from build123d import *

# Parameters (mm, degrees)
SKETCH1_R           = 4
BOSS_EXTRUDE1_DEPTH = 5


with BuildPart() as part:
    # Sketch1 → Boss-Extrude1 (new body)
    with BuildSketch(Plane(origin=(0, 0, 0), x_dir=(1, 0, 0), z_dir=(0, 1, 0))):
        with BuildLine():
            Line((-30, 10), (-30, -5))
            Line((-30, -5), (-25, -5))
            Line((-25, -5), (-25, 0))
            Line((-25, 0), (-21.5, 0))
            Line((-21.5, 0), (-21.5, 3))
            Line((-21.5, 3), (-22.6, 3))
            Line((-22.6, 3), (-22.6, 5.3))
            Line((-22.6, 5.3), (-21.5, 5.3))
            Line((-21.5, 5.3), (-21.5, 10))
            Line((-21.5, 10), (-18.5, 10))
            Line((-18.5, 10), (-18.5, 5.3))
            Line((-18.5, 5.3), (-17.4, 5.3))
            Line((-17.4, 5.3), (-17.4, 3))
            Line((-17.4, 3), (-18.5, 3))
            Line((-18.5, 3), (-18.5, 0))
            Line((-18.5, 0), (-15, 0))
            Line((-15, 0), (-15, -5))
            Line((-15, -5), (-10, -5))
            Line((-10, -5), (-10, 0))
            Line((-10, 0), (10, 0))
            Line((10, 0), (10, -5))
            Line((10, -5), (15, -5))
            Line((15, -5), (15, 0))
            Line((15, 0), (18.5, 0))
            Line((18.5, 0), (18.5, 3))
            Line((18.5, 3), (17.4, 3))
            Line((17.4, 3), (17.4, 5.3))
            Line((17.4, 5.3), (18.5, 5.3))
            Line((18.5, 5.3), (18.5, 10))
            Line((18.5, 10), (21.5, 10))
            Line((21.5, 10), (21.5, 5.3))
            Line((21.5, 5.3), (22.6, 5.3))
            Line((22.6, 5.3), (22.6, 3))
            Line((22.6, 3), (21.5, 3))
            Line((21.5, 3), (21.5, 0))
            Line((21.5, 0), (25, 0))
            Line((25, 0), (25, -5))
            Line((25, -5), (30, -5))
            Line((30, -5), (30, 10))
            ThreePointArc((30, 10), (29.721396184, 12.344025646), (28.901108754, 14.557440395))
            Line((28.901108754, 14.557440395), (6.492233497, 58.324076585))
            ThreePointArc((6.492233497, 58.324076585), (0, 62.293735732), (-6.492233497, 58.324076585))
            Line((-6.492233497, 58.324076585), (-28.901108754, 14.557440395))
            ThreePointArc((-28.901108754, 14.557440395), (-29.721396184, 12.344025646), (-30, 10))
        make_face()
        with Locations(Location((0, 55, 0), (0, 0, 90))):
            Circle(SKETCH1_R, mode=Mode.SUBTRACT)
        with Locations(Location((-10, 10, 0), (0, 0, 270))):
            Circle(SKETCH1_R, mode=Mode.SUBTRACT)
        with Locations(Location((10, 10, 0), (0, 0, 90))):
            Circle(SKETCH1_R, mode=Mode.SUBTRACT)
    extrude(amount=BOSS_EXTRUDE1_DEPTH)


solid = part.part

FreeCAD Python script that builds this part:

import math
import FreeCAD as App
import Part
import Sketcher
Q = App.Units.Quantity

doc = App.newDocument("Part")
body = doc.addObject("PartDesign::Body", "Body")

sketch1 = body.newObject("Sketcher::SketchObject", "Sketch")
sketch1.AttachmentSupport = (doc.getObject("XZ_Plane"), [""])
sketch1.MapMode = "FlatFace"
sketch1.addGeometry(Part.LineSegment(App.Vector(-30, -10, 0), App.Vector(-30, 5, 0)), False)
sketch1.addGeometry(Part.LineSegment(App.Vector(-30, 5, 0), App.Vector(-25, 5, 0)), False)
sketch1.addGeometry(Part.LineSegment(App.Vector(-25, 5, 0), App.Vector(-25, 0, 0)), False)
sketch1.addGeometry(Part.LineSegment(App.Vector(-25, 0, 0), App.Vector(-21.5, 0, 0)), False)
sketch1.addGeometry(Part.LineSegment(App.Vector(-21.5, 0, 0), App.Vector(-21.5, -3, 0)), False)
sketch1.addGeometry(Part.LineSegment(App.Vector(-21.5, -3, 0), App.Vector(-22.6, -3, 0)), False)
sketch1.addGeometry(Part.LineSegment(App.Vector(-22.6, -3, 0), App.Vector(-22.6, -5.3, 0)), False)
sketch1.addGeometry(Part.LineSegment(App.Vector(-22.6, -5.3, 0), App.Vector(-21.5, -5.3, 0)), False)
sketch1.addGeometry(Part.LineSegment(App.Vector(-21.5, -5.3, 0), App.Vector(-21.5, -10, 0)), False)
sketch1.addGeometry(Part.LineSegment(App.Vector(-21.5, -10, 0), App.Vector(-18.5, -10, 0)), False)
sketch1.addGeometry(Part.LineSegment(App.Vector(-18.5, -10, 0), App.Vector(-18.5, -5.3, 0)), False)
sketch1.addGeometry(Part.LineSegment(App.Vector(-18.5, -5.3, 0), App.Vector(-17.4, -5.3, 0)), False)
sketch1.addGeometry(Part.LineSegment(App.Vector(-17.4, -5.3, 0), App.Vector(-17.4, -3, 0)), False)
sketch1.addGeometry(Part.LineSegment(App.Vector(-17.4, -3, 0), App.Vector(-18.5, -3, 0)), False)
sketch1.addGeometry(Part.LineSegment(App.Vector(-18.5, -3, 0), App.Vector(-18.5, 0, 0)), False)
sketch1.addGeometry(Part.LineSegment(App.Vector(-18.5, 0, 0), App.Vector(-15, 0, 0)), False)
sketch1.addGeometry(Part.LineSegment(App.Vector(-15, 0, 0), App.Vector(-15, 5, 0)), False)
sketch1.addGeometry(Part.LineSegment(App.Vector(-15, 5, 0), App.Vector(-10, 5, 0)), False)
sketch1.addGeometry(Part.LineSegment(App.Vector(-10, 5, 0), App.Vector(-10, 0, 0)), False)
sketch1.addGeometry(Part.LineSegment(App.Vector(-10, 0, 0), App.Vector(10, 0, 0)), False)
sketch1.addGeometry(Part.LineSegment(App.Vector(10, 0, 0), App.Vector(10, 5, 0)), False)
sketch1.addGeometry(Part.LineSegment(App.Vector(10, 5, 0), App.Vector(15, 5, 0)), False)
sketch1.addGeometry(Part.LineSegment(App.Vector(15, 5, 0), App.Vector(15, 0, 0)), False)
sketch1.addGeometry(Part.LineSegment(App.Vector(15, 0, 0), App.Vector(18.5, 0, 0)), False)
sketch1.addGeometry(Part.LineSegment(App.Vector(18.5, 0, 0), App.Vector(18.5, -3, 0)), False)
sketch1.addGeometry(Part.LineSegment(App.Vector(18.5, -3, 0), App.Vector(17.4, -3, 0)), False)
sketch1.addGeometry(Part.LineSegment(App.Vector(17.4, -3, 0), App.Vector(17.4, -5.3, 0)), False)
sketch1.addGeometry(Part.LineSegment(App.Vector(17.4, -5.3, 0), App.Vector(18.5, -5.3, 0)), False)
sketch1.addGeometry(Part.LineSegment(App.Vector(18.5, -5.3, 0), App.Vector(18.5, -10, 0)), False)
sketch1.addGeometry(Part.LineSegment(App.Vector(18.5, -10, 0), App.Vector(21.5, -10, 0)), False)
sketch1.addGeometry(Part.LineSegment(App.Vector(21.5, -10, 0), App.Vector(21.5, -5.3, 0)), False)
sketch1.addGeometry(Part.LineSegment(App.Vector(21.5, -5.3, 0), App.Vector(22.6, -5.3, 0)), False)
sketch1.addGeometry(Part.LineSegment(App.Vector(22.6, -5.3, 0), App.Vector(22.6, -3, 0)), False)
sketch1.addGeometry(Part.LineSegment(App.Vector(22.6, -3, 0), App.Vector(21.5, -3, 0)), False)
sketch1.addGeometry(Part.LineSegment(App.Vector(21.5, -3, 0), App.Vector(21.5, 0, 0)), False)
sketch1.addGeometry(Part.LineSegment(App.Vector(21.5, 0, 0), App.Vector(25, 0, 0)), False)
sketch1.addGeometry(Part.LineSegment(App.Vector(25, 0, 0), App.Vector(25, 5, 0)), False)
sketch1.addGeometry(Part.LineSegment(App.Vector(25, 5, 0), App.Vector(30, 5, 0)), False)
sketch1.addGeometry(Part.LineSegment(App.Vector(30, 5, 0), App.Vector(30, -10, 0)), False)
sketch1.addGeometry(Part.ArcOfCircle(Part.Circle(App.Vector(20, -10, 0), App.Vector(0, 0, 1), 10), math.radians(-27), math.radians(0)), False)
sketch1.addGeometry(Part.LineSegment(App.Vector(28.9, -14.6, 0), App.Vector(6.5, -58.3, 0)), False)
sketch1.addGeometry(Part.ArcOfCircle(Part.Circle(App.Vector(0, -55, 0), App.Vector(0, 0, 1), 7.3), math.radians(-153), math.radians(-27)), False)
sketch1.addGeometry(Part.LineSegment(App.Vector(-6.5, -58.3, 0), App.Vector(-28.9, -14.6, 0)), False)
sketch1.addGeometry(Part.ArcOfCircle(Part.Circle(App.Vector(-20, -10, 0), App.Vector(0, 0, 1), 10), math.radians(-180), math.radians(-153)), False)
sketch1.addGeometry(Part.Circle(App.Vector(-10, -10, 0), App.Vector(0, 0, 1), 4), False)
sketch1.addGeometry(Part.Circle(App.Vector(10, -10, 0), App.Vector(0, 0, 1), 4), False)
sketch1.addGeometry(Part.Circle(App.Vector(0, -55, 0), App.Vector(0, 0, 1), 4), False)
sketch1.addConstraint(Sketcher.Constraint("Coincident", 0, 2, 1, 1))
sketch1.addConstraint(Sketcher.Constraint("Coincident", 1, 2, 2, 1))
sketch1.addConstraint(Sketcher.Constraint("Coincident", 2, 2, 3, 1))
sketch1.addConstraint(Sketcher.Constraint("Coincident", 3, 2, 4, 1))
sketch1.addConstraint(Sketcher.Constraint("Coincident", 4, 2, 5, 1))
sketch1.addConstraint(Sketcher.Constraint("Coincident", 5, 2, 6, 1))
sketch1.addConstraint(Sketcher.Constraint("Coincident", 6, 2, 7, 1))
sketch1.addConstraint(Sketcher.Constraint("Coincident", 7, 2, 8, 1))
sketch1.addConstraint(Sketcher.Constraint("Coincident", 8, 2, 9, 1))
sketch1.addConstraint(Sketcher.Constraint("Coincident", 9, 2, 10, 1))
sketch1.addConstraint(Sketcher.Constraint("Coincident", 10, 2, 11, 1))
sketch1.addConstraint(Sketcher.Constraint("Coincident", 11, 2, 12, 1))
sketch1.addConstraint(Sketcher.Constraint("Coincident", 12, 2, 13, 1))
sketch1.addConstraint(Sketcher.Constraint("Coincident", 13, 2, 14, 1))
sketch1.addConstraint(Sketcher.Constraint("Coincident", 14, 2, 15, 1))
sketch1.addConstraint(Sketcher.Constraint("Coincident", 15, 2, 16, 1))
sketch1.addConstraint(Sketcher.Constraint("Coincident", 16, 2, 17, 1))
sketch1.addConstraint(Sketcher.Constraint("Coincident", 17, 2, 18, 1))
sketch1.addConstraint(Sketcher.Constraint("Coincident", 18, 2, 19, 1))
sketch1.addConstraint(Sketcher.Constraint("Coincident", 19, 2, 20, 1))
sketch1.addConstraint(Sketcher.Constraint("Coincident", 20, 2, 21, 1))
sketch1.addConstraint(Sketcher.Constraint("Coincident", 21, 2, 22, 1))
sketch1.addConstraint(Sketcher.Constraint("Coincident", 22, 2, 23, 1))
sketch1.addConstraint(Sketcher.Constraint("Coincident", 23, 2, 24, 1))
sketch1.addConstraint(Sketcher.Constraint("Coincident", 24, 2, 25, 1))
sketch1.addConstraint(Sketcher.Constraint("Coincident", 25, 2, 26, 1))
sketch1.addConstraint(Sketcher.Constraint("Coincident", 26, 2, 27, 1))
sketch1.addConstraint(Sketcher.Constraint("Coincident", 27, 2, 28, 1))
sketch1.addConstraint(Sketcher.Constraint("Coincident", 28, 2, 29, 1))
sketch1.addConstraint(Sketcher.Constraint("Coincident", 29, 2, 30, 1))
sketch1.addConstraint(Sketcher.Constraint("Coincident", 30, 2, 31, 1))
sketch1.addConstraint(Sketcher.Constraint("Coincident", 31, 2, 32, 1))
sketch1.addConstraint(Sketcher.Constraint("Coincident", 32, 2, 33, 1))
sketch1.addConstraint(Sketcher.Constraint("Coincident", 33, 2, 34, 1))
sketch1.addConstraint(Sketcher.Constraint("Coincident", 34, 2, 35, 1))
sketch1.addConstraint(Sketcher.Constraint("Coincident", 35, 2, 36, 1))
sketch1.addConstraint(Sketcher.Constraint("Coincident", 36, 2, 37, 1))
sketch1.addConstraint(Sketcher.Constraint("Coincident", 37, 2, 38, 1))
sketch1.addConstraint(Sketcher.Constraint("Tangent", 38, 2, 39, 2))
sketch1.addConstraint(Sketcher.Constraint("Tangent", 39, 1, 40, 1))
sketch1.addConstraint(Sketcher.Constraint("Tangent", 40, 2, 41, 2))
sketch1.addConstraint(Sketcher.Constraint("Tangent", 41, 1, 42, 1))
sketch1.addConstraint(Sketcher.Constraint("Tangent", 42, 2, 43, 2))
sketch1.addConstraint(Sketcher.Constraint("Tangent", 43, 1, 0, 1))
sketch1.addConstraint(Sketcher.Constraint("Vertical", 0))
sketch1.addConstraint(Sketcher.Constraint("Horizontal", 1))
sketch1.addConstraint(Sketcher.Constraint("Vertical", 2))
sketch1.addConstraint(Sketcher.Constraint("Horizontal", 3))
sketch1.addConstraint(Sketcher.Constraint("Vertical", 4))
sketch1.addConstraint(Sketcher.Constraint("Horizontal", 5))
sketch1.addConstraint(Sketcher.Constraint("Vertical", 6))
sketch1.addConstraint(Sketcher.Constraint("Horizontal", 7))
sketch1.addConstraint(Sketcher.Constraint("Vertical", 8))
sketch1.addConstraint(Sketcher.Constraint("Horizontal", 9))
sketch1.addConstraint(Sketcher.Constraint("Vertical", 10))
sketch1.addConstraint(Sketcher.Constraint("Horizontal", 11))
sketch1.addConstraint(Sketcher.Constraint("Vertical", 12))
sketch1.addConstraint(Sketcher.Constraint("Horizontal", 13))
sketch1.addConstraint(Sketcher.Constraint("Vertical", 14))
sketch1.addConstraint(Sketcher.Constraint("Horizontal", 15))
sketch1.addConstraint(Sketcher.Constraint("Vertical", 16))
sketch1.addConstraint(Sketcher.Constraint("Horizontal", 17))
sketch1.addConstraint(Sketcher.Constraint("Vertical", 18))
sketch1.addConstraint(Sketcher.Constraint("Horizontal", 19))
sketch1.addConstraint(Sketcher.Constraint("Vertical", 20))
sketch1.addConstraint(Sketcher.Constraint("Horizontal", 21))
sketch1.addConstraint(Sketcher.Constraint("Vertical", 22))
sketch1.addConstraint(Sketcher.Constraint("Horizontal", 23))
sketch1.addConstraint(Sketcher.Constraint("Vertical", 24))
sketch1.addConstraint(Sketcher.Constraint("Horizontal", 25))
sketch1.addConstraint(Sketcher.Constraint("Vertical", 26))
sketch1.addConstraint(Sketcher.Constraint("Horizontal", 27))
sketch1.addConstraint(Sketcher.Constraint("Vertical", 28))
sketch1.addConstraint(Sketcher.Constraint("Horizontal", 29))
sketch1.addConstraint(Sketcher.Constraint("Vertical", 30))
sketch1.addConstraint(Sketcher.Constraint("Horizontal", 31))
sketch1.addConstraint(Sketcher.Constraint("Vertical", 32))
sketch1.addConstraint(Sketcher.Constraint("Horizontal", 33))
sketch1.addConstraint(Sketcher.Constraint("Vertical", 34))
sketch1.addConstraint(Sketcher.Constraint("Horizontal", 35))
sketch1.addConstraint(Sketcher.Constraint("Vertical", 36))
sketch1.addConstraint(Sketcher.Constraint("Horizontal", 37))
sketch1.addConstraint(Sketcher.Constraint("Vertical", 38))
sketch1.addConstraint(Sketcher.Constraint("Coincident", 46, 3, 41, 3))
sketch1.addConstraint(Sketcher.Constraint("Equal", 39, 43))
sketch1.addConstraint(Sketcher.Constraint("Equal", 44, 45))
sketch1.addConstraint(Sketcher.Constraint("Equal", 45, 46))
sketch1.addConstraint(Sketcher.Constraint("Symmetric", 18, 2, 19, 2, -1, 1))
sketch1.addConstraint(Sketcher.Constraint("Symmetric", 15, 2, 22, 2, -1, 1))
sketch1.addConstraint(Sketcher.Constraint("Symmetric", 3, 2, 34, 2, -1, 1))
sketch1.addConstraint(Sketcher.Constraint("Symmetric", 39, 3, 43, 3, -2))
sketch1.addConstraint(Sketcher.Constraint("Symmetric", 44, 3, 45, 3, -2))
sketch1.addConstraint(Sketcher.Constraint("Symmetric", 14, 2, 23, 2, -2))
sketch1.addConstraint(Sketcher.Constraint("Symmetric", 12, 2, 25, 2, -2))
sketch1.addConstraint(Sketcher.Constraint("Symmetric", 10, 2, 27, 2, -2))
sketch1.addConstraint(Sketcher.Constraint("Symmetric", 8, 2, 29, 2, -2))
sketch1.addConstraint(Sketcher.Constraint("Symmetric", 6, 2, 31, 2, -2))
sketch1.addConstraint(Sketcher.Constraint("Symmetric", 2, 2, 35, 2, -2))
sketch1.addConstraint(Sketcher.Constraint("PointOnObject", 41, 3, -2))
sketch1.addConstraint(Sketcher.Constraint("Horizontal", 43, 3, 44, 3))
sketch1.addConstraint(Sketcher.Constraint("Horizontal", 45, 3, 8, 2))
sketch1.addConstraint(Sketcher.Constraint("Horizontal", 7, 2, 10, 2))
sketch1.addConstraint(Sketcher.Constraint("Horizontal", 5, 2, 12, 2))
sketch1.addConstraint(Sketcher.Constraint("Horizontal", 1, 2, 16, 2))
sketch1.addConstraint(Sketcher.Constraint("Horizontal", 17, 2, 20, 2))
sketch1.addConstraint(Sketcher.Constraint("Horizontal", 25, 2, 32, 2))
sketch1.addConstraint(Sketcher.Constraint("Horizontal", 21, 2, 36, 2))
sketch1.addConstraint(Sketcher.Constraint("Vertical", 4, 2, 7, 2))
sketch1.addConstraint(Sketcher.Constraint("Vertical", 10, 2, 13, 2))
sketch1.addConstraint(Sketcher.Constraint("Vertical", 44, 3, 17, 2))
sketch1.addConstraint(Sketcher.Constraint("Equal", 7, 11))
sketch1.addConstraint(Sketcher.Constraint("Equal", 3, 15))
sketch1.addConstraint(Sketcher.Constraint("Equal", 1, 17))
sketch1.addConstraint(Sketcher.Constraint("Equal", 37, 2))
sketch1.addConstraint(Sketcher.Constraint("Equal", 29, 4))
sketch1.addConstraint(Sketcher.Constraint("Diameter", 44, Q("8 mm")))
sketch1.addConstraint(Sketcher.Constraint("Radius", 39, Q("10 mm")))
sketch1.addConstraint(Sketcher.Constraint("DistanceX", 1, 1, 1, 2, Q("5 mm")))
sketch1.addConstraint(Sketcher.Constraint("DistanceX", 9, 1, 9, 2, Q("3 mm")))
sketch1.addConstraint(Sketcher.Constraint("DistanceX", 19, 1, 19, 2, Q("20 mm")))
sketch1.addConstraint(Sketcher.Constraint("DistanceY", 0, 1, 0, 2, Q("15 mm")))
sketch1.addConstraint(Sketcher.Constraint("DistanceX", 3, 1, 3, 2, Q("3.5 mm")))
sketch1.addConstraint(Sketcher.Constraint("DistanceX", 5, 2, 5, 1, Q("1.1 mm")))
sketch1.addConstraint(Sketcher.Constraint("DistanceY", 6, 2, 6, 1, Q("2.3 mm")))
sketch1.addConstraint(Sketcher.Constraint("DistanceY", 41, 3, -1, 1, Q("55 mm")))
sketch1.addConstraint(Sketcher.Constraint("Radius", 41, Q("7.293736 mm")))
pad1 = body.newObject("PartDesign::Pad", "Pad")
pad1.Profile = sketch1
pad1.Length = 5
pad1.Reversed = True

doc.recompute()
